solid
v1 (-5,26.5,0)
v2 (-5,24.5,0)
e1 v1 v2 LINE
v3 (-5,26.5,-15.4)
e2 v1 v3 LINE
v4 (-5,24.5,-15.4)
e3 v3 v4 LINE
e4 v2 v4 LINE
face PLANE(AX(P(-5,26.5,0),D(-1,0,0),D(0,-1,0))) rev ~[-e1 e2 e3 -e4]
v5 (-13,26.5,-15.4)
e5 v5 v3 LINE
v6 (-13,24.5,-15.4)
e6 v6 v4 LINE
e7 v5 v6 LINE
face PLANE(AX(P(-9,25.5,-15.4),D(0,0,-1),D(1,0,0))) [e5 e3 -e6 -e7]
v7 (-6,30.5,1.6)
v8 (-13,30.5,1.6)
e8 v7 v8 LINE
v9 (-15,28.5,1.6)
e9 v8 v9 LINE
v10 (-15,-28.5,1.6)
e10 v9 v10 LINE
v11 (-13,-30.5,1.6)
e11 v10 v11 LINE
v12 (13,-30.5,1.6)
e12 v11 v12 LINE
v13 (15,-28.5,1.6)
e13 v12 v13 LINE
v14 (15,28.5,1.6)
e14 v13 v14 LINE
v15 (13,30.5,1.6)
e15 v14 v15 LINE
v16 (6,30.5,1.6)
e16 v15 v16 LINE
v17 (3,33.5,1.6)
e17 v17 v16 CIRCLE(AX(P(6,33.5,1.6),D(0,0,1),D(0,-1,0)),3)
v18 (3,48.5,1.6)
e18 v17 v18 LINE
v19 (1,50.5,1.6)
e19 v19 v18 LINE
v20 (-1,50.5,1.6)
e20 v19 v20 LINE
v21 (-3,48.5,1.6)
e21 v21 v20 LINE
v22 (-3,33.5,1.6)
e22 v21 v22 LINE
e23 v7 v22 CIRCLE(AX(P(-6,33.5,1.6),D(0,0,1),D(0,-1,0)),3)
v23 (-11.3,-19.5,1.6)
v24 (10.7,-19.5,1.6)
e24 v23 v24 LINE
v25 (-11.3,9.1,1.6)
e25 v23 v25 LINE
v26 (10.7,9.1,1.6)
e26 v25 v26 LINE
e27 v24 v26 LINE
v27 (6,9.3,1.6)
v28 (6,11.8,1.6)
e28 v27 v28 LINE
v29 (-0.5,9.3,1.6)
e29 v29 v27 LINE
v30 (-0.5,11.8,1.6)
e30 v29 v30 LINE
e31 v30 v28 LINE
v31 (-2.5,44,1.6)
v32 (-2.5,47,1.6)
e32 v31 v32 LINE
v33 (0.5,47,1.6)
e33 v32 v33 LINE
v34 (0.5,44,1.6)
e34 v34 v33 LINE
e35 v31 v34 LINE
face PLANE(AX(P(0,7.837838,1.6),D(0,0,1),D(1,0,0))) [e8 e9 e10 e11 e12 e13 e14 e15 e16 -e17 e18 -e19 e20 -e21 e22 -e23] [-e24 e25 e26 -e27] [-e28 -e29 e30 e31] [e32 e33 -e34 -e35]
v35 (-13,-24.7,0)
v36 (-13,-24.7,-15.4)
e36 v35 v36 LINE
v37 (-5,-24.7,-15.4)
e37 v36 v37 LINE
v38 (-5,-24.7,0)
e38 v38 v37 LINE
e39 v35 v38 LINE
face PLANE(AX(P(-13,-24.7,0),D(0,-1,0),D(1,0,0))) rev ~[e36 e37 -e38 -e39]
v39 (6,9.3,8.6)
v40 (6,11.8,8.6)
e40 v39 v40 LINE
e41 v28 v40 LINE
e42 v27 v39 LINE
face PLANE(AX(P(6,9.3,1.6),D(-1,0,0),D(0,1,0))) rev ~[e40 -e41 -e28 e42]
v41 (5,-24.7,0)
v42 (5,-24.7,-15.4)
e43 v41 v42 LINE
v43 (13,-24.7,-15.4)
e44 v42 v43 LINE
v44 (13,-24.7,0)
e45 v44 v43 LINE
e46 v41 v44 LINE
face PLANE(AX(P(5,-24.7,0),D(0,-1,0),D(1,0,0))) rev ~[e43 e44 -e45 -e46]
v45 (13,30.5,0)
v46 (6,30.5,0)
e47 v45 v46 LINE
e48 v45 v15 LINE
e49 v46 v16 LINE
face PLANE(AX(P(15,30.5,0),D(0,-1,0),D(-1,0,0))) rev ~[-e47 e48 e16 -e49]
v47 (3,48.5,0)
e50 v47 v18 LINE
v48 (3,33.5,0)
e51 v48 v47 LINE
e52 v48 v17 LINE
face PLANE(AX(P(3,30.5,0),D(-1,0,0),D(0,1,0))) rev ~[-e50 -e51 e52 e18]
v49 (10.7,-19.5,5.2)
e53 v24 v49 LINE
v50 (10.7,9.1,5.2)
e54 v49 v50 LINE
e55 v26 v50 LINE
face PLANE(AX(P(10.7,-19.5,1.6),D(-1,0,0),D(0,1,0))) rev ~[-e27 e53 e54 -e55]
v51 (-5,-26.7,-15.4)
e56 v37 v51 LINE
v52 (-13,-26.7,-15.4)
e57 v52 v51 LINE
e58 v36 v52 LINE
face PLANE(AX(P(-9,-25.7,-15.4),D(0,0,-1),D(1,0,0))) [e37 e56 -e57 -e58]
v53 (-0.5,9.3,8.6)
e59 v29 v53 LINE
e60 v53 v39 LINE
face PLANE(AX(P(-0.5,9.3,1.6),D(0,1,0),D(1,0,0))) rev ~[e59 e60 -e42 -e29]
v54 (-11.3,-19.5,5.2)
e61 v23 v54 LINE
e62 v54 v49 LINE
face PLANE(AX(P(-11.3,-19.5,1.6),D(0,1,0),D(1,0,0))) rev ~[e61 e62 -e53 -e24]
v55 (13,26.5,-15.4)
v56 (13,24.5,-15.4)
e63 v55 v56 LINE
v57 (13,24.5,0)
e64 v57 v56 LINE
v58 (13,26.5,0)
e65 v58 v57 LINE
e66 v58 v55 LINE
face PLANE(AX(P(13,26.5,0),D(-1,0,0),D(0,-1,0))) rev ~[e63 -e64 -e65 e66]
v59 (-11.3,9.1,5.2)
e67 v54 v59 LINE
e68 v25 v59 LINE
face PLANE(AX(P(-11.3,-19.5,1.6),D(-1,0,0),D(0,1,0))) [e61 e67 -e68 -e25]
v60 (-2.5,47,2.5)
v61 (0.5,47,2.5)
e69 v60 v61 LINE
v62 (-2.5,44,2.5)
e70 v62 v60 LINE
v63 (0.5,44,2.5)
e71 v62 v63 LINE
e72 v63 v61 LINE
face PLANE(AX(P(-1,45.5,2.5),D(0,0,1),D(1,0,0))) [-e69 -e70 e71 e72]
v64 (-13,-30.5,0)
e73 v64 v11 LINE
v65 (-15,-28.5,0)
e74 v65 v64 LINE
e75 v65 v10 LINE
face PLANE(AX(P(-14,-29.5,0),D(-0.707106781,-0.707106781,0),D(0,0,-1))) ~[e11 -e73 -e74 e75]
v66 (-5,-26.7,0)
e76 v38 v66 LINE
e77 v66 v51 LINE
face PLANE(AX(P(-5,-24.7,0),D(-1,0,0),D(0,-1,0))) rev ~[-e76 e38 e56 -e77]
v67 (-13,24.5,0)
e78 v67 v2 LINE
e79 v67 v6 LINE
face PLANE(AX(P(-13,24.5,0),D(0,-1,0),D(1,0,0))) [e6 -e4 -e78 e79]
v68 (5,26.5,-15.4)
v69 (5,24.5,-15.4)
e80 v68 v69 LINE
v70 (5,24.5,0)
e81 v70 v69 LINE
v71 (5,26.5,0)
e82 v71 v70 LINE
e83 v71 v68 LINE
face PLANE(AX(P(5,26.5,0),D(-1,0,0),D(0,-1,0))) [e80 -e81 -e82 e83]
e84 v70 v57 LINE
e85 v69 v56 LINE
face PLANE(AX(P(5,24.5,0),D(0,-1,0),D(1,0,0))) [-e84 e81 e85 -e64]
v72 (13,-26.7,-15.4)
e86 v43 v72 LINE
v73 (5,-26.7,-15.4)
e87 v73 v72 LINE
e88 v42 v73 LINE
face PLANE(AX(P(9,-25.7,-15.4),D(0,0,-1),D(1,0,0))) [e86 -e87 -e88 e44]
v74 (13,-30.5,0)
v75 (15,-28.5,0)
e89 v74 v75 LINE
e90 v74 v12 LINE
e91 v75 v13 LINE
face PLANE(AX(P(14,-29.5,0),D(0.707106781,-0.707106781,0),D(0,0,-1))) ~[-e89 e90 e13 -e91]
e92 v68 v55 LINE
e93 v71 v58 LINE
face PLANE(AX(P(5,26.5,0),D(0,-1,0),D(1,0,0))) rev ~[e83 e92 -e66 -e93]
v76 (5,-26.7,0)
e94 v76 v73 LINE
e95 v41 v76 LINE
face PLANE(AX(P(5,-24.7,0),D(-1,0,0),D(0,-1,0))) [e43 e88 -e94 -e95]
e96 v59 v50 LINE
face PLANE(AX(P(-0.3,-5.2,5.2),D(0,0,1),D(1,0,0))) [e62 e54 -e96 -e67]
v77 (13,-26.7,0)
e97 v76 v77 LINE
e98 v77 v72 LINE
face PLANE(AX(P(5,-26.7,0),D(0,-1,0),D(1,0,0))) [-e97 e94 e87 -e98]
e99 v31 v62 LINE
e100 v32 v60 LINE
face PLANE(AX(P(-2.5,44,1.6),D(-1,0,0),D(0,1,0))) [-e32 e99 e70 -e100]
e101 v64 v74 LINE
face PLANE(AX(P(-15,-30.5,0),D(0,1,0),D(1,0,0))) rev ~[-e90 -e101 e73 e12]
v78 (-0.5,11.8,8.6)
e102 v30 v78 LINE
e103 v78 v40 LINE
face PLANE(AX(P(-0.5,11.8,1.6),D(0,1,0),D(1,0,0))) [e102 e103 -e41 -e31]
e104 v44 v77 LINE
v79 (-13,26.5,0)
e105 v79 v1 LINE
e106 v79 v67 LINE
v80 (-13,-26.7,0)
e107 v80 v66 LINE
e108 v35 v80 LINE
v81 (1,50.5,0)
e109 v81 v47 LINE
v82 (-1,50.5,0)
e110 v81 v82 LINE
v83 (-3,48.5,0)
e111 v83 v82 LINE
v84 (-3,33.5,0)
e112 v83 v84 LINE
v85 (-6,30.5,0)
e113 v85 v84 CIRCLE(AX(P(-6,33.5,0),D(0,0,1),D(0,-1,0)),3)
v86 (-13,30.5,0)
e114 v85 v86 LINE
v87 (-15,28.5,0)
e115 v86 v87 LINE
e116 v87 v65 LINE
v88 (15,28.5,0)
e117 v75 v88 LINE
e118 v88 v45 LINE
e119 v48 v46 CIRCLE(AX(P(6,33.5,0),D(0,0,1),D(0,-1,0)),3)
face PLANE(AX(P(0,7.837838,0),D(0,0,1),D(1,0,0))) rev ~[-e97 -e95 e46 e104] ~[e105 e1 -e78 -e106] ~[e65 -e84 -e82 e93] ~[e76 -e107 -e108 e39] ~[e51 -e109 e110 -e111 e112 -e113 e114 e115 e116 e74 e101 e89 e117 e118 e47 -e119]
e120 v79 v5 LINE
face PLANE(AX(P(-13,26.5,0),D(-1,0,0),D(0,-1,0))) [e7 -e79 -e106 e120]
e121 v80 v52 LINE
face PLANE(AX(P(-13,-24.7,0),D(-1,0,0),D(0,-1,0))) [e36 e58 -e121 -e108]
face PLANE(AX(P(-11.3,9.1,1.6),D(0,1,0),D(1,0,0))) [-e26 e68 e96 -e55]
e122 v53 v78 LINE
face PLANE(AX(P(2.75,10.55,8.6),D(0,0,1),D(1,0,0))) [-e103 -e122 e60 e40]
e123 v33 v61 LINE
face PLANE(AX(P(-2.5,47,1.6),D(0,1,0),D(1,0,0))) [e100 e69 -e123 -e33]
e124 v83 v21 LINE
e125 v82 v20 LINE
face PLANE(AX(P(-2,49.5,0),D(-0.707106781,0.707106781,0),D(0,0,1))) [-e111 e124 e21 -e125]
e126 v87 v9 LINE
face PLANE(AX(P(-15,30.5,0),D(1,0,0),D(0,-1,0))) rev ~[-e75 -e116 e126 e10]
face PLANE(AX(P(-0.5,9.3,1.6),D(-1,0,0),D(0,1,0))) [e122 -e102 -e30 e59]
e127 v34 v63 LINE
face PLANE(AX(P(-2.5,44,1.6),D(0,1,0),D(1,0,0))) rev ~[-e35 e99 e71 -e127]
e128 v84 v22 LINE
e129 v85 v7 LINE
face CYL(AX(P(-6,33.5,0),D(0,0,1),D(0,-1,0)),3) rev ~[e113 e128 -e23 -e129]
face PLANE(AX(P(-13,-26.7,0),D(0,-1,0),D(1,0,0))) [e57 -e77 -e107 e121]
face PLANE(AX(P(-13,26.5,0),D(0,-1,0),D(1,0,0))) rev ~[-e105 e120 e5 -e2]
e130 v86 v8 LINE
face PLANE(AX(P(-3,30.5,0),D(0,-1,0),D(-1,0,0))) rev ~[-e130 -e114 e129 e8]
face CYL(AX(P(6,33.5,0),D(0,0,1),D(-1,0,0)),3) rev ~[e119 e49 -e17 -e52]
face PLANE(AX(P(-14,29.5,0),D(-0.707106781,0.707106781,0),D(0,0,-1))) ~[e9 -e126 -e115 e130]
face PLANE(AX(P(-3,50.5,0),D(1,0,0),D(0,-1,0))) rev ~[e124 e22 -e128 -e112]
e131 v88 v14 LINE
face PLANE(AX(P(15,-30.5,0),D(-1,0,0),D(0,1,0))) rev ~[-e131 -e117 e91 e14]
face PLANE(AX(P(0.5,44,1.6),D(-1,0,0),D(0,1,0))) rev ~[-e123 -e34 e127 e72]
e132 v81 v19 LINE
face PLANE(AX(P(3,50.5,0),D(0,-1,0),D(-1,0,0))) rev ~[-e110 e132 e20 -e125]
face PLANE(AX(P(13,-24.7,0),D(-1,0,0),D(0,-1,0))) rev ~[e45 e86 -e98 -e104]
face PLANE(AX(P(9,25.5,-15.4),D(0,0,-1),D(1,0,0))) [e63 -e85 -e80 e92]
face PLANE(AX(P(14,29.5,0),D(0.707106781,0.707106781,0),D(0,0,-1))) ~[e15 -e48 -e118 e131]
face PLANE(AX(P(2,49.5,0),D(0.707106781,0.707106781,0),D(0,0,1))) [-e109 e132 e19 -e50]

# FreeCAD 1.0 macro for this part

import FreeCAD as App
import Part
import Sketcher
Q = App.Units.Quantity


def edges_at(feature, points):
    """Names of the edges that pass closest to the given points."""
    edges = feature.Shape.Edges
    near = lambda p: min(range(len(edges)), key=lambda i: edges[i].distToShape(Part.Vertex(*p))[0])
    return sorted({f"Edge{near(p) + 1}" for p in points})


def add_polygon(sketch, points):
    """Adds a closed chain of lines whose ends are joined by coincident constraints."""
    first, n = sketch.GeometryCount, len(points)
    for a, b in zip(points, points[1:] + points[:1]):
        sketch.addGeometry(Part.LineSegment(App.Vector(*a, 0), App.Vector(*b, 0)), False)
    for i in range(n):
        sketch.addConstraint(Sketcher.Constraint("Coincident", first + i, 2, first + (i + 1) % n, 1))

doc = App.newDocument("Part")
body = doc.addObject("PartDesign::Body", "Body")

# Sketch on XY plane
sketch1 = body.newObject("Sketcher::SketchObject", "Sketch")
sketch1.AttachmentSupport = (doc.getObject("XY_Plane"), [""])
sketch1.MapMode = "FlatFace"
add_polygon(sketch1, [(-3, 30), (-15, 30), (-15, -30), (15, -30), (15, 30), (3, 30), (3, 50), (-3, 50)])  # lines 0-7
sketch1.addConstraint([
    Sketcher.Constraint("Horizontal", 0),
    Sketcher.Constraint("Vertical", 1),
    Sketcher.Constraint("Horizontal", 2),
    Sketcher.Constraint("Vertical", 3),
    Sketcher.Constraint("Horizontal", 4),
    Sketcher.Constraint("Vertical", 5),
    Sketcher.Constraint("Horizontal", 6),
    Sketcher.Constraint("Vertical", 7),
    Sketcher.Constraint("Symmetric", 0, 2, 2, 2, -1, 1),
    Sketcher.Constraint("Symmetric", 4, 2, 7, 2, -2),
    Sketcher.Constraint("DistanceX", 0, 2, 0, 1, Q("12 mm")),
    Sketcher.Constraint("DistanceX", 2, 1, 2, 2, Q("30 mm")),
    Sketcher.Constraint("DistanceY", 1, 2, 1, 1, Q("61 mm")),
    Sketcher.Constraint("DistanceY", 5, 1, 5, 2, Q("20 mm")),
])
pad1 = body.newObject("PartDesign::Pad", "Pad")
pad1.Profile = sketch1
pad1.Length = 1.6

# Sketch on XY plane
sketch2 = body.newObject("Sketcher::SketchObject", "Sketch001")
sketch2.AttachmentSupport = (doc.getObject("XY_Plane"), [""])
sketch2.MapMode = "FlatFace"
sketch2.AttachmentOffset = App.Placement(App.Vector(0, 0, 1.6), App.Rotation())
add_polygon(sketch2, [(-11, 9), (-11, -20), (11, -20), (11, 9)])  # lines 0-3
sketch2.addConstraint([
    Sketcher.Constraint("Vertical", 0),
    Sketcher.Constraint("Horizontal", 1),
    Sketcher.Constraint("Vertical", 2),
    Sketcher.Constraint("Horizontal", 3),
    Sketcher.Constraint("DistanceX", 1, 1, 1, 2, Q("22 mm")),
    Sketcher.Constraint("DistanceY", 0, 2, 0, 1, Q("28.6 mm")),
    Sketcher.Constraint("DistanceX", 0, 2, -1, 1, Q("11.3 mm")),
    Sketcher.Constraint("DistanceY", 0, 2, -1, 1, Q("19.5 mm")),
])
pad2 = body.newObject("PartDesign::Pad", "Pad001")
pad2.Profile = sketch2
pad2.Length = 3.6

# Sketch on XY plane
sketch3 = body.newObject("Sketcher::SketchObject", "Sketch002")
sketch3.AttachmentSupport = (doc.getObject("XY_Plane"), [""])
sketch3.MapMode = "FlatFace"
sketch3.AttachmentOffset = App.Placement(App.Vector(0, 0, 1.6), App.Rotation())
add_polygon(sketch3, [(-0.5, 11.8), (-0.5, 9.3), (6, 9.3), (6, 11.8)])  # lines 0-3
sketch3.addConstraint([
    Sketcher.Constraint("Vertical", 0),
    Sketcher.Constraint("Horizontal", 1),
    Sketcher.Constraint("Vertical", 2),
    Sketcher.Constraint("Horizontal", 3),
    Sketcher.Constraint("DistanceX", 1, 1, 1, 2, Q("6.5 mm")),
    Sketcher.Constraint("DistanceY", 0, 2, 0, 1, Q("2.5 mm")),
    Sketcher.Constraint("DistanceX", -1, 1, 1, 2, Q("6 mm")),
    Sketcher.Constraint("DistanceY", -1, 1, 0, 2, Q("9.3 mm")),
])
pad3 = body.newObject("PartDesign::Pad", "Pad002")
pad3.Profile = sketch3
pad3.Length = 7

# Sketch on XY plane
sketch4 = body.newObject("Sketcher::SketchObject", "Sketch003")
sketch4.AttachmentSupport = (doc.getObject("XY_Plane"), [""])
sketch4.MapMode = "FlatFace"
sketch4.AttachmentOffset = App.Placement(App.Vector(0, 0, 1.6), App.Rotation())
add_polygon(sketch4, [(-2.5, 47), (-2.5, 44), (0.5, 44), (0.5, 47)])  # lines 0-3
sketch4.addConstraint([
    Sketcher.Constraint("Vertical", 0),
    Sketcher.Constraint("Horizontal", 1),
    Sketcher.Constraint("Vertical", 2),
    Sketcher.Constraint("Horizontal", 3),
    Sketcher.Constraint("Equal", 3, 0),
    Sketcher.Constraint("DistanceX", 1, 1, 1, 2, Q("3 mm")),
    Sketcher.Constraint("DistanceY", -1, 1, 0, 2, Q("44 mm")),
    Sketcher.Constraint("DistanceX", 0, 2, -1, 1, Q("2.5 mm")),
])
pad4 = body.newObject("PartDesign::Pad", "Pad003")
pad4.Profile = sketch4
pad4.Length = 0.9

# Sketch on XY plane
sketch5 = body.newObject("Sketcher::SketchObject", "Sketch004")
sketch5.AttachmentSupport = (doc.getObject("XY_Plane"), [""])
sketch5.MapMode = "FlatFace"
add_polygon(sketch5, [(-13, -26.7), (-13, -24.7), (-5, -24.7), (-5, -26.7)])  # lines 0-3
add_polygon(sketch5, [(5, -26.7), (5, -24.7), (13, -24.7), (13, -26.7)])  # lines 4-7
add_polygon(sketch5, [(-13, 24.5), (-13, 26.5), (-5, 26.5), (-5, 24.5)])  # lines 8-11
add_polygon(sketch5, [(5, 24.5), (5, 26.5), (13, 26.5), (13, 24.5)])  # lines 12-15
sketch5.addConstraint([
    Sketcher.Constraint("Vertical", 0),
    Sketcher.Constraint("Horizontal", 1),
    Sketcher.Constraint("Vertical", 2),
    Sketcher.Constraint("Horizontal", 3),
    Sketcher.Constraint("Vertical", 4),
    Sketcher.Constraint("Horizontal", 5),
    Sketcher.Constraint("Vertical", 6),
    Sketcher.Constraint("Horizontal", 7),
    Sketcher.Constraint("Vertical", 8),
    Sketcher.Constraint("Horizontal", 9),
    Sketcher.Constraint("Vertical", 10),
    Sketcher.Constraint("Horizontal", 11),
    Sketcher.Constraint("Vertical", 12),
    Sketcher.Constraint("Horizontal", 13),
    Sketcher.Constraint("Vertical", 14),
    Sketcher.Constraint("Horizontal", 15),
    Sketcher.Constraint("Symmetric", 1, 2, 4, 2, -2),
    Sketcher.Constraint("Symmetric", 3, 2, 6, 2, -2),
    Sketcher.Constraint("Symmetric", 9, 2, 12, 2, -2),
    Sketcher.Constraint("Symmetric", 11, 2, 14, 2, -2),
    Sketcher.Constraint("Vertical", 3, 2, 8, 2),
    Sketcher.Constraint("Vertical", 2, 2, 9, 2),
    Sketcher.Constraint("Equal", 6, 8),
    Sketcher.Constraint("DistanceX", 1, 1, 1, 2, Q("8 mm")),
    Sketcher.Constraint("DistanceY", 0, 1, 0, 2, Q("2 mm")),
    Sketcher.Constraint("DistanceX", 0, 2, -1, 1, Q("13 mm")),
    Sketcher.Constraint("DistanceY", 0, 2, -1, 1, Q("24.7 mm")),
    Sketcher.Constraint("DistanceY", -1, 1, 8, 2, Q("26.5 mm")),
])
pad5 = body.newObject("PartDesign::Pad", "Pad004")
pad5.Profile = sketch5
pad5.Length = 15.4
pad5.Reversed = True
doc.recompute()

fillet = body.newObject("PartDesign::Fillet", "Fillet")
fillet.Base = (pad5, edges_at(pad5, [(-3, 30.5, 0.8), (3, 30.5, 0.8)]))
fillet.Radius = 3
doc.recompute()

chamfer = body.newObject("PartDesign::Chamfer", "Chamfer")
chamfer.Base = (fillet, edges_at(fillet, [
    (-15, 30.5, 0.8),
    (-15, -30.5, 0.8),
    (15, -30.5, 0.8),
    (15, 30.5, 0.8),
    (3, 50.5, 0.8),
    (-3, 50.5, 0.8),
]))
chamfer.Size = 2

doc.recompute()
